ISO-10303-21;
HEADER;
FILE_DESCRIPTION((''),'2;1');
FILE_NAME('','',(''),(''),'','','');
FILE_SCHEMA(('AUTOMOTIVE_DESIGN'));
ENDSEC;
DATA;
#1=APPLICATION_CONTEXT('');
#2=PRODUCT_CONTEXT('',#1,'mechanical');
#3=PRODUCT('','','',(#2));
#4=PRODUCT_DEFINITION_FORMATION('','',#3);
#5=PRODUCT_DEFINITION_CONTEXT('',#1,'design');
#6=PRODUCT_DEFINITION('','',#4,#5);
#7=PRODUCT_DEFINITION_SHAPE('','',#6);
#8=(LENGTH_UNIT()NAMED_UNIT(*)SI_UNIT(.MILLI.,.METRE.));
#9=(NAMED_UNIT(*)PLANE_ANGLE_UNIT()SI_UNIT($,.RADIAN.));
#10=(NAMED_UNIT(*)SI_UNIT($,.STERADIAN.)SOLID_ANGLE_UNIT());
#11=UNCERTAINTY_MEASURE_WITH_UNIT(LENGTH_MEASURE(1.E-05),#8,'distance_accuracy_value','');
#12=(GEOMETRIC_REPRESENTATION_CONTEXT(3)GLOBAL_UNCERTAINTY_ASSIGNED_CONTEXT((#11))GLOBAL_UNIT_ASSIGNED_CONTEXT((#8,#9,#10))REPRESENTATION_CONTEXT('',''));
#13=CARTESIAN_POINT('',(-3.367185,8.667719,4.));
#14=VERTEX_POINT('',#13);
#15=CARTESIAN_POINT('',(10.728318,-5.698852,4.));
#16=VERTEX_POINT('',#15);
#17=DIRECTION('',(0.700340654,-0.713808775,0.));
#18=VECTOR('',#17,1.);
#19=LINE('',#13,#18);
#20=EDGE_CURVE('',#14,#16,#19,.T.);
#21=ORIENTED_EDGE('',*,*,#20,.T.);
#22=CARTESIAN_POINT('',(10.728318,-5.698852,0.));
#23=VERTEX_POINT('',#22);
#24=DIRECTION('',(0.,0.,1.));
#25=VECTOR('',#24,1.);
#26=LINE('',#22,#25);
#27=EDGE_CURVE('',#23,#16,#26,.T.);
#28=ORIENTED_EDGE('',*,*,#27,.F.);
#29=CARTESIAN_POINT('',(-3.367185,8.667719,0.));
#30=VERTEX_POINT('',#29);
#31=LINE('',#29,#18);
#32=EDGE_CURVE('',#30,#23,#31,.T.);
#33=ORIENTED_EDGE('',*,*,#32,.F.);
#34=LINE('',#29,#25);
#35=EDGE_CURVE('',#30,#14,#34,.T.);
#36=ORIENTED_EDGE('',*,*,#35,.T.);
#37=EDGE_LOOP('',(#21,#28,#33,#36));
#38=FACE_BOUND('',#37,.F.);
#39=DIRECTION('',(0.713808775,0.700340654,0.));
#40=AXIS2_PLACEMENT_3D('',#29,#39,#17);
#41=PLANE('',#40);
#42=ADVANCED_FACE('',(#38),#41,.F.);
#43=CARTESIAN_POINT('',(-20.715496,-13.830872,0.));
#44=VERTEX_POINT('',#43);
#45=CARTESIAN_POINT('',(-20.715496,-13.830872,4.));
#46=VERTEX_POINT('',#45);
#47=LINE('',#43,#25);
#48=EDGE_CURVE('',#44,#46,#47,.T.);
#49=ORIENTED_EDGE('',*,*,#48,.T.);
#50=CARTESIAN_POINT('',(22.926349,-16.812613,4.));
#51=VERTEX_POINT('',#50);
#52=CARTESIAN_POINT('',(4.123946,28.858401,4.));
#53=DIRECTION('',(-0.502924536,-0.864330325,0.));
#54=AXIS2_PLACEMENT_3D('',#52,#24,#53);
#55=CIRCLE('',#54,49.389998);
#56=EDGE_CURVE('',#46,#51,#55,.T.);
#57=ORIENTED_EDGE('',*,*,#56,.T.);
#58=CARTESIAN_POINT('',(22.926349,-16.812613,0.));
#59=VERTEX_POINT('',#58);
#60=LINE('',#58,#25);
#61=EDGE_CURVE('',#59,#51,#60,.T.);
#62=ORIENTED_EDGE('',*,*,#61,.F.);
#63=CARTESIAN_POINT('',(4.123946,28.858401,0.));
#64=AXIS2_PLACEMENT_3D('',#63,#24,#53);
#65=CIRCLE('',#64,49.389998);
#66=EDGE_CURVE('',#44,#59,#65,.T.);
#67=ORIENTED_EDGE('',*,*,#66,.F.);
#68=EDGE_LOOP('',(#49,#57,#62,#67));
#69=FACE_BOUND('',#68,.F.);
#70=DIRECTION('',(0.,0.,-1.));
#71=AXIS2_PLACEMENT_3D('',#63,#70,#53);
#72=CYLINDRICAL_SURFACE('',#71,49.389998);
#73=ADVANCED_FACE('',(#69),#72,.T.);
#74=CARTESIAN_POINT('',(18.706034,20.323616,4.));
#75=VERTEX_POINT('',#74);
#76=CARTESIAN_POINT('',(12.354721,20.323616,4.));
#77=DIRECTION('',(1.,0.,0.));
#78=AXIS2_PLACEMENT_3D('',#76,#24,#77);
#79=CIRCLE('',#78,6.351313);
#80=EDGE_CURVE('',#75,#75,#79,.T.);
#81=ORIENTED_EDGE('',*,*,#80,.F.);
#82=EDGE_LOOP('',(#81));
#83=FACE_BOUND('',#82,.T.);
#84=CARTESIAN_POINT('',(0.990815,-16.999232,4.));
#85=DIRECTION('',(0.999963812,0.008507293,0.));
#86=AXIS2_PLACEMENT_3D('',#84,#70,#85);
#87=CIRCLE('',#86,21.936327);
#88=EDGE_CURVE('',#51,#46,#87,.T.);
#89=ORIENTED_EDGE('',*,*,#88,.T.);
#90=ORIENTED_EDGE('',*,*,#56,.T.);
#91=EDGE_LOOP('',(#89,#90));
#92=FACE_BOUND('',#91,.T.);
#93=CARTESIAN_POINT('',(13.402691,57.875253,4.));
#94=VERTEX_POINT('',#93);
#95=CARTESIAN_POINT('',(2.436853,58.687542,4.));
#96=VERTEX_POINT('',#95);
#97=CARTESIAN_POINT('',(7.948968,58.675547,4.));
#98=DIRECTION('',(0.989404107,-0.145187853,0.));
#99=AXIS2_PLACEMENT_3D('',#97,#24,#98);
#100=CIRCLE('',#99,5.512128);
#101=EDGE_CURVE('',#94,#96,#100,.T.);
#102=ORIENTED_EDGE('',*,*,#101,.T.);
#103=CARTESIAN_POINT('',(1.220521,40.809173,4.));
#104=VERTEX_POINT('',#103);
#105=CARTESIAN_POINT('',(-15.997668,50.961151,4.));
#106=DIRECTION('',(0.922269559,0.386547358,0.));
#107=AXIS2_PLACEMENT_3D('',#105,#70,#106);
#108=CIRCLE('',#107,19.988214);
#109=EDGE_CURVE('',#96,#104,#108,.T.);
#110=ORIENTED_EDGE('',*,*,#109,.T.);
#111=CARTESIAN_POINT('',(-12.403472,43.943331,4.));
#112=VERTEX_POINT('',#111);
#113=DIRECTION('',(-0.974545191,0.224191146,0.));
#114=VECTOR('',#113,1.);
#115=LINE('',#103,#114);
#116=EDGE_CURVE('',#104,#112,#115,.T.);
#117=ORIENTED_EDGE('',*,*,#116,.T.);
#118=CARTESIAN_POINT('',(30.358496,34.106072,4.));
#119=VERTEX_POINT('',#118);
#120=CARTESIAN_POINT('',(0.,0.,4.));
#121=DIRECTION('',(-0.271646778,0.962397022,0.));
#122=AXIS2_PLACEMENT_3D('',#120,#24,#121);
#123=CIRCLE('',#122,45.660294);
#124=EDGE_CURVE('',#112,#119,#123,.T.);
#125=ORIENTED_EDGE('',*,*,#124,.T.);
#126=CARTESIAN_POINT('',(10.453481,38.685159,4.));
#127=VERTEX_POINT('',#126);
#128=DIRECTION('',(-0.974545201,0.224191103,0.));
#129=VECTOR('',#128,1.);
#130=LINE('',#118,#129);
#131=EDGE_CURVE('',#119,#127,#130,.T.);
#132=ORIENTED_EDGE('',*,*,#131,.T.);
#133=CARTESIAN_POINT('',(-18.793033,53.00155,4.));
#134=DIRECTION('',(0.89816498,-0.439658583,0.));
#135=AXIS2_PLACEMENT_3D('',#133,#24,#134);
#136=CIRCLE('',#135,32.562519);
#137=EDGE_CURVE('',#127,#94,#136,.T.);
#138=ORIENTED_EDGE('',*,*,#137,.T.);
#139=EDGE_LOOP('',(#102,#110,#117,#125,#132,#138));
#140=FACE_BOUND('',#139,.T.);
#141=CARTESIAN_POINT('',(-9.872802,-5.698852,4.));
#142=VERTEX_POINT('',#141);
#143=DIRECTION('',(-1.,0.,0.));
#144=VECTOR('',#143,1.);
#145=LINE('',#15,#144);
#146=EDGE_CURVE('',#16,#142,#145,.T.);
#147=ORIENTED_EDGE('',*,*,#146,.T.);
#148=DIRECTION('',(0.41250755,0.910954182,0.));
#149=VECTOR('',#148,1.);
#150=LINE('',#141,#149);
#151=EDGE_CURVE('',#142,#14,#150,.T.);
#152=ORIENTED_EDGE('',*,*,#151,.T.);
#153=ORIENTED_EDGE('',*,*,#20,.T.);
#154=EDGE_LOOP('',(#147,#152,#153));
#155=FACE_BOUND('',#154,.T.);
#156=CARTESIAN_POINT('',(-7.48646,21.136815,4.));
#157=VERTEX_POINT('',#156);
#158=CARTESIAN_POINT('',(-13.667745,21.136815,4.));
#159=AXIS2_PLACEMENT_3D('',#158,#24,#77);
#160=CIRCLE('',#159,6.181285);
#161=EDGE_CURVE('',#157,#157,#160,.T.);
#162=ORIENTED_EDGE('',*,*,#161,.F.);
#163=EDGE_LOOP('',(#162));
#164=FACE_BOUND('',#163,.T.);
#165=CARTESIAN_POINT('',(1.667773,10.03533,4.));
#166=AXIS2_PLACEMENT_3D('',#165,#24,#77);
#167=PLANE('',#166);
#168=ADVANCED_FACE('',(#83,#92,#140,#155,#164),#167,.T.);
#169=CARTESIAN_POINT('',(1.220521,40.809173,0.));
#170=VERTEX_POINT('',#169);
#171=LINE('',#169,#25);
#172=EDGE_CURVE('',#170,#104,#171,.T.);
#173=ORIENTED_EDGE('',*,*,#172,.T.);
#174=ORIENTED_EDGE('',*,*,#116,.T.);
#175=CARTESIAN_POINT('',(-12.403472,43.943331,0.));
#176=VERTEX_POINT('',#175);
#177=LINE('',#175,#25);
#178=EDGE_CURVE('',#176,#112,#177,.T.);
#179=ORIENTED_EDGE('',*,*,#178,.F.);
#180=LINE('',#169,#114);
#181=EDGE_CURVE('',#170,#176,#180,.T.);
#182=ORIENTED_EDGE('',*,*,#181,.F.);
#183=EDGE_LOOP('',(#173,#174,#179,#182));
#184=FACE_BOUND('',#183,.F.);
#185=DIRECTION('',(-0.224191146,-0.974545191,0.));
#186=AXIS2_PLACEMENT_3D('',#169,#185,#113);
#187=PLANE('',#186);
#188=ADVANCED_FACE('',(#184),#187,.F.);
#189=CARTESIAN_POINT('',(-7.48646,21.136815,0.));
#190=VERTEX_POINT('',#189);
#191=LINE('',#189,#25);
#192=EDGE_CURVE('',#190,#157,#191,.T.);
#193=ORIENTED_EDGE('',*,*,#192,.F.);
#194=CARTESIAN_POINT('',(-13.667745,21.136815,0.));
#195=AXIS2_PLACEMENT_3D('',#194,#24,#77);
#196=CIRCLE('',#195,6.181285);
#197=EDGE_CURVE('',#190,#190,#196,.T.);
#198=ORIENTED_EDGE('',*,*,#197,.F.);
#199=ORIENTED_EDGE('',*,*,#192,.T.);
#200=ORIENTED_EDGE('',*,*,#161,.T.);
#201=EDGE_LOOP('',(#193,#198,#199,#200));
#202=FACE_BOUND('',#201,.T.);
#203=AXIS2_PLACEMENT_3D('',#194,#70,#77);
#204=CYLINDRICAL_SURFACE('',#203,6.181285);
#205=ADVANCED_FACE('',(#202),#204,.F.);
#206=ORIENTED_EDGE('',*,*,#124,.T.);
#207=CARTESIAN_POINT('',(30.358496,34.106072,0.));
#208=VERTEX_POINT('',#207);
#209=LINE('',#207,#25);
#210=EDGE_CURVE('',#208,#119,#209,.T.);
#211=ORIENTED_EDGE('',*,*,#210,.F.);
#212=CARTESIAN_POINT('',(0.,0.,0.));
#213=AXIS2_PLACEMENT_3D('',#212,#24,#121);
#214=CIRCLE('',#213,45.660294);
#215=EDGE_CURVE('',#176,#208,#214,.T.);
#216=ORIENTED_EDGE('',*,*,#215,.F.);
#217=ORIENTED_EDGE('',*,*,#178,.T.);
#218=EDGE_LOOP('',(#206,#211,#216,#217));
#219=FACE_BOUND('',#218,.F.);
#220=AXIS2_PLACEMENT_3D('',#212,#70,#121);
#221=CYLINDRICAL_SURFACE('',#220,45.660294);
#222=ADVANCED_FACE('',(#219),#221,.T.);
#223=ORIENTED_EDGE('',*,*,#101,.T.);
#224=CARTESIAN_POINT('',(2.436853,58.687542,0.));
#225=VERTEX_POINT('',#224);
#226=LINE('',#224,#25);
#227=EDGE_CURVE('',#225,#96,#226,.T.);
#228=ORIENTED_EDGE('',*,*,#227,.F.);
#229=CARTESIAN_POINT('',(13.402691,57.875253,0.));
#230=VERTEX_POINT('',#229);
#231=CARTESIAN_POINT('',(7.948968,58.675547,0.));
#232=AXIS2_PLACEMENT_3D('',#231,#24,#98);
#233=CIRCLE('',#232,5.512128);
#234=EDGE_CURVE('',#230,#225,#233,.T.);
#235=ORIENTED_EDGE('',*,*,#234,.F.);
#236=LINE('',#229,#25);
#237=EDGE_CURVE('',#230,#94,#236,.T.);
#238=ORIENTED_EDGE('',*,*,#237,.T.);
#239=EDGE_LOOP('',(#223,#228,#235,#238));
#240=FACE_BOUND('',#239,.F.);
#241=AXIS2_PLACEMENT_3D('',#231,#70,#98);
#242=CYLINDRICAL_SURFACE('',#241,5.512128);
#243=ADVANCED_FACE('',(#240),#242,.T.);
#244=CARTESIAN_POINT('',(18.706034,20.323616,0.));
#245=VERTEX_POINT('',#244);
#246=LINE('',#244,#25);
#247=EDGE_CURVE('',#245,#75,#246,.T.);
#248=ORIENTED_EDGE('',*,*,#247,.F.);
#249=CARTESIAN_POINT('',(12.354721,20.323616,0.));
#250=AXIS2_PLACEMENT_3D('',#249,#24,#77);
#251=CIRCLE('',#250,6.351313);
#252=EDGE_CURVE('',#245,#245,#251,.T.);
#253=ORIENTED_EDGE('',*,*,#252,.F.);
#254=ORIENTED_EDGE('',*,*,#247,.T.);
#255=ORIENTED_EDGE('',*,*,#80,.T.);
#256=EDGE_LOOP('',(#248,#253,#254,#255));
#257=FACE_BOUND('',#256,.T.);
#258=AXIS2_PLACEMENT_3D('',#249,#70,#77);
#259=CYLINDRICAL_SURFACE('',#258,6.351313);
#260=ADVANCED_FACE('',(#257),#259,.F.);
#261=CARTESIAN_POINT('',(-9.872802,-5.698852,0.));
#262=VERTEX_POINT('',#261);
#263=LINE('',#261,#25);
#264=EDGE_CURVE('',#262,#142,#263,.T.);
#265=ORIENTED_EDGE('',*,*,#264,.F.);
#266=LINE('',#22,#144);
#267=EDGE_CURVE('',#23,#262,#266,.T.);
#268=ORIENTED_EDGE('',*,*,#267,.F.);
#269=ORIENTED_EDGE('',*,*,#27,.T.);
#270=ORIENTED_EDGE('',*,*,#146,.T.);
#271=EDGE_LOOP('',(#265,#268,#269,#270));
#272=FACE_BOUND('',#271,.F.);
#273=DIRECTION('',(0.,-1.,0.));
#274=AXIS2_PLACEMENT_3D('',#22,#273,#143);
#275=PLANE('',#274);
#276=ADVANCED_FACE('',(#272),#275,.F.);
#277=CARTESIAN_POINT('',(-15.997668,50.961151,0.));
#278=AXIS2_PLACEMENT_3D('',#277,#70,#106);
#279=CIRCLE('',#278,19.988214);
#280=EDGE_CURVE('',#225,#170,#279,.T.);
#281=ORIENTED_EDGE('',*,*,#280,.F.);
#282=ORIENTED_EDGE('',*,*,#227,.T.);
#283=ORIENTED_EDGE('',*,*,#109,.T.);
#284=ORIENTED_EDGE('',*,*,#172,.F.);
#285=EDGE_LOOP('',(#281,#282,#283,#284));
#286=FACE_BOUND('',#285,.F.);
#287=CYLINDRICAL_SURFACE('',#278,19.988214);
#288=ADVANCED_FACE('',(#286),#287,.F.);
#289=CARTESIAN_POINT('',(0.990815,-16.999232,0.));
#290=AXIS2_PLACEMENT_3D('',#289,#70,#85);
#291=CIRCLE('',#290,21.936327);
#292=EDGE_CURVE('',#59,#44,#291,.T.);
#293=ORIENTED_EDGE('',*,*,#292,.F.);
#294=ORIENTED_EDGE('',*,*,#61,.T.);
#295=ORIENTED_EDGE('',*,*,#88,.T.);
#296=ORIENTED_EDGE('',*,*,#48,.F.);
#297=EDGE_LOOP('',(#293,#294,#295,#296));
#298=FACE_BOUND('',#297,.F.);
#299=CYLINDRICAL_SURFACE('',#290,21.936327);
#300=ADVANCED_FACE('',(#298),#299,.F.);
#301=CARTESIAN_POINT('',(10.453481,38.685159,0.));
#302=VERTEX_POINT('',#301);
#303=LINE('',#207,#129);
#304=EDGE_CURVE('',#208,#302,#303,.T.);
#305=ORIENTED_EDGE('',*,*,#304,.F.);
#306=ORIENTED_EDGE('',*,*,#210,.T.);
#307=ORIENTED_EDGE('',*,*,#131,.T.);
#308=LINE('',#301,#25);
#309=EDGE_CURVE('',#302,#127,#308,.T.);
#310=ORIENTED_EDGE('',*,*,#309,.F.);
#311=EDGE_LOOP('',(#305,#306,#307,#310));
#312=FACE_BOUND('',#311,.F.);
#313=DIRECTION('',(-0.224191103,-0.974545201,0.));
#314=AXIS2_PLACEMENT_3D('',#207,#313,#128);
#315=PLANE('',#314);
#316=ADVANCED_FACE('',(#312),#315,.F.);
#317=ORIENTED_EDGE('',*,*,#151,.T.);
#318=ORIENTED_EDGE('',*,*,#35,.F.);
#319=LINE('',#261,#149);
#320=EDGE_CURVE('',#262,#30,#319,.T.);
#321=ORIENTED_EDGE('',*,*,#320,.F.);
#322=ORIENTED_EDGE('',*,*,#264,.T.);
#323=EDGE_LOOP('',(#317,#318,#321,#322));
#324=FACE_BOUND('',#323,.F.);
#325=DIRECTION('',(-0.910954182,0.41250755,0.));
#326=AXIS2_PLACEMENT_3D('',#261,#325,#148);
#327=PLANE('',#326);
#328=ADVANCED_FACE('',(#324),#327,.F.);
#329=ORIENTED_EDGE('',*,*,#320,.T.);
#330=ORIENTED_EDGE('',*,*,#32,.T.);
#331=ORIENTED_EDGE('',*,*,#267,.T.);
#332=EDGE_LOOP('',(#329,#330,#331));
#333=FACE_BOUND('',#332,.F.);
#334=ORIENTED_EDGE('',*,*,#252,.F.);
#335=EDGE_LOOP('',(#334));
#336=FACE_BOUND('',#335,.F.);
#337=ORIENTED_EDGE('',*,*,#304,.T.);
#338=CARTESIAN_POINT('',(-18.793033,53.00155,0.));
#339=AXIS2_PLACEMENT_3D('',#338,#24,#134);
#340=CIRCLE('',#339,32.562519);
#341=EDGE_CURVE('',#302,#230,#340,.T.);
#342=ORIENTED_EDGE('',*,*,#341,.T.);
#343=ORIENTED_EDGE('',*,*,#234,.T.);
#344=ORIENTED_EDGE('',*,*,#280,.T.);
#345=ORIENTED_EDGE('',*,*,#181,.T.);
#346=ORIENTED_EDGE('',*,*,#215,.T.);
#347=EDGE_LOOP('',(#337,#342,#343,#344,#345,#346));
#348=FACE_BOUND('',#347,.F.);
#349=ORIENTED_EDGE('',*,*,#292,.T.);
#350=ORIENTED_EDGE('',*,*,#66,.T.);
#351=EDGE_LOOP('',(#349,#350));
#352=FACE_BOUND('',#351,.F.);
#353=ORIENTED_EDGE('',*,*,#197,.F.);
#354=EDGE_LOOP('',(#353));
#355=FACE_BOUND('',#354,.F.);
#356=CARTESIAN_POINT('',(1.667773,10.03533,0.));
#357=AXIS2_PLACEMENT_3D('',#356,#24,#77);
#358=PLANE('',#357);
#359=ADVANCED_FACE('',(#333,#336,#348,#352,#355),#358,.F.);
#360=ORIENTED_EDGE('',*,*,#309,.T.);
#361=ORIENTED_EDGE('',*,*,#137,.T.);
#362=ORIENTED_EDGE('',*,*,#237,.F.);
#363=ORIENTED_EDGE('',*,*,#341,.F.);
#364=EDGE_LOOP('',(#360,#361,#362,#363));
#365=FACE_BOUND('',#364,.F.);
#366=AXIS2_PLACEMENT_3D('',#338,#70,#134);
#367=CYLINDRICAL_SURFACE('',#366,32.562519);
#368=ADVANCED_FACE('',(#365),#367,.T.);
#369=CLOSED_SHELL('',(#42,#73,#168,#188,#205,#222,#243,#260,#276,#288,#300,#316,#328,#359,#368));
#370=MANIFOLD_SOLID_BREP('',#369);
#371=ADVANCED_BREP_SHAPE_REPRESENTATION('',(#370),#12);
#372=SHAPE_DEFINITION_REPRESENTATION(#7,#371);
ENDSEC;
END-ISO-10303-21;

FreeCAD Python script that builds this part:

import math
import FreeCAD as App
import Part
import Sketcher
from FreeCAD import Vector
Q = App.Units.Quantity

doc = App.newDocument("Part")
body = doc.addObject("PartDesign::Body", "Body")

sketch1 = body.newObject("Sketcher::SketchObject", "Sketch")
sketch1.AttachmentSupport = (doc.getObject("XY_Plane"), [""])
sketch1.MapMode = "FlatFace"
sketch1.addGeometry([
    Part.LineSegment(Vector(1, 41, 0), Vector(-12, 44, 0)),
    Part.ArcOfCircle(Part.Circle(Vector(0, 0, 0), Vector(0, 0, 1), 46), math.radians(106), math.radians(408)),
    Part.LineSegment(Vector(30, 34, 0), Vector(10, 39, 0)),
    Part.ArcOfCircle(Part.Circle(Vector(-19, 53, 0), Vector(0, 0, 1), 33), math.radians(-26), math.radians(9)),
    Part.ArcOfCircle(Part.Circle(Vector(8, 59, 0), Vector(0, 0, 1), 6), math.radians(-8), math.radians(180)),
    Part.ArcOfCircle(Part.Circle(Vector(-16, 51, 0), Vector(0, 0, 1), 20), math.radians(-31), math.radians(23)),
    Part.ArcOfCircle(Part.Circle(Vector(4, 29, 0), Vector(0, 0, 1), 49), math.radians(-120), math.radians(-68)),
    Part.ArcOfCircle(Part.Circle(Vector(1, -17, 0), Vector(0, 0, 1), 22), math.radians(172), math.radians(360)),
    Part.LineSegment(Vector(11, -6, 0), Vector(-10, -6, 0)),
    Part.LineSegment(Vector(-10, -6, 0), Vector(-3, 9, 0)),
    Part.LineSegment(Vector(-3, 9, 0), Vector(11, -6, 0)),
    Part.Circle(Vector(-14, 21, 0), Vector(0, 0, 1), 6),
    Part.Circle(Vector(12, 20, 0), Vector(0, 0, 1), 6),
], False)
sketch1.addConstraint([
    Sketcher.Constraint("Coincident", 0, 2, 1, 1),
    Sketcher.Constraint("Coincident", 1, 2, 2, 1),
    Sketcher.Constraint("Coincident", 2, 2, 3, 1),
    Sketcher.Constraint("Coincident", 3, 2, 4, 1),
    Sketcher.Constraint("Coincident", 4, 2, 5, 2),
    Sketcher.Constraint("Coincident", 5, 1, 0, 1),
    Sketcher.Constraint("Coincident", 6, 1, 7, 1),
    Sketcher.Constraint("Coincident", 7, 2, 6, 2),
    Sketcher.Constraint("Coincident", 8, 2, 9, 1),
    Sketcher.Constraint("Coincident", 9, 2, 10, 1),
    Sketcher.Constraint("Coincident", 10, 2, 8, 1),
    Sketcher.Constraint("Horizontal", 8),
    Sketcher.Constraint("Coincident", 1, 3, -1, 1),
    Sketcher.Constraint("Parallel", 0, 2),
    Sketcher.Constraint("Diameter", 11, Q("12.36257 mm")),
    Sketcher.Constraint("Radius", 3, Q("32.562519 mm")),
    Sketcher.Constraint("Radius", 4, Q("5.512128 mm")),
    Sketcher.Constraint("Diameter", 12, Q("12.702626 mm")),
    Sketcher.Constraint("Radius", 1, Q("45.660294 mm")),
    Sketcher.Constraint("Radius", 5, Q("19.988214 mm")),
    Sketcher.Constraint("Radius", 6, Q("49.389998 mm")),
    Sketcher.Constraint("Radius", 7, Q("21.936327 mm")),
    Sketcher.Constraint("DistanceX", 3, 3, 4, 3, Q("26.742001 mm")),
    Sketcher.Constraint("DistanceX", 8, 2, 8, 1, Q("20.60112 mm")),
    Sketcher.Constraint("DistanceY", -1, 1, 6, 3, Q("28.858401 mm")),
    Sketcher.Constraint("DistanceY", 5, 3, 3, 3, Q("2.040399 mm")),
    Sketcher.Constraint("DistanceY", 12, 3, 11, 3, Q("0.813199 mm")),
    Sketcher.Constraint("DistanceX", 8, 2, 1, 3, Q("9.872802 mm")),
    Sketcher.Constraint("Distance", 10, Q("20.126638 mm")),
    Sketcher.Constraint("DistanceY", -1, 1, 3, 3, Q("53.00155 mm")),
    Sketcher.Constraint("DistanceX", -1, 1, 4, 3, Q("7.948968 mm")),
    Sketcher.Constraint("DistanceX", 5, 3, -1, 1, Q("15.997668 mm")),
    Sketcher.Constraint("DistanceY", 7, 3, -1, 1, Q("16.999232 mm")),
    Sketcher.Constraint("DistanceX", -1, 1, 12, 3, Q("12.354721 mm")),
    Sketcher.Constraint("DistanceY", -1, 1, 0, 2, Q("43.943331 mm")),
    Sketcher.Constraint("DistanceX", -1, 1, 2, 2, Q("10.453481 mm")),
    Sketcher.Constraint("DistanceX", -1, 1, 3, 2, Q("13.402691 mm")),
    Sketcher.Constraint("DistanceX", -1, 1, 5, 1, Q("1.220521 mm")),
    Sketcher.Constraint("DistanceX", -1, 1, 7, 2, Q("22.926349 mm")),
    Sketcher.Constraint("DistanceY", 8, 2, -1, 1, Q("5.698852 mm")),
    Sketcher.Constraint("DistanceY", -1, 1, 9, 2, Q("8.667719 mm")),
    Sketcher.Constraint("DistanceX", 3, 3, 6, 3, Q("22.916978 mm")),
    Sketcher.Constraint("DistanceX", 11, 3, 6, 3, Q("17.791691 mm")),
    Sketcher.Constraint("DistanceY", 12, 3, 4, 3, Q("38.351931 mm")),
])
pad1 = body.newObject("PartDesign::Pad", "Pad")
pad1.Profile = sketch1
pad1.Length = 4

doc.recompute()
